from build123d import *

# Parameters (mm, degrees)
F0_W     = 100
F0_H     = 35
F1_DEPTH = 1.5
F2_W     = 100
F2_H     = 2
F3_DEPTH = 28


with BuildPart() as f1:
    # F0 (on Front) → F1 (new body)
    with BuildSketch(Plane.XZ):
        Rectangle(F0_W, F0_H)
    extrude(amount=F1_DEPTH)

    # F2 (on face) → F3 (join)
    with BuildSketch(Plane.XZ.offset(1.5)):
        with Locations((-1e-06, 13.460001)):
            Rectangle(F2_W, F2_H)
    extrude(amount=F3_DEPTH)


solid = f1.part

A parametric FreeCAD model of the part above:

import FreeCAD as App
import Part
import Sketcher
from FreeCAD import Vector

doc = App.newDocument("Part")
body = doc.addObject("PartDesign::Body", "Body")

# Sketch on XZ plane
sketch1 = body.newObject("Sketcher::SketchObject", "Sketch")
sketch1.AttachmentSupport = (doc.getObject("XZ_Plane"), [""])
sketch1.MapMode = "FlatFace"
sketch1.addGeometry(Part.LineSegment(Vector(-50, 18, 0), Vector(-50, -18, 0)), False)
sketch1.addGeometry(Part.LineSegment(Vector(-50, -18, 0), Vector(50, -18, 0)), False)
sketch1.addGeometry(Part.LineSegment(Vector(50, -18, 0), Vector(50, 18, 0)), False)
sketch1.addGeometry(Part.LineSegment(Vector(50, 18, 0), Vector(-50, 18, 0)), False)
sketch1.addConstraint(Sketcher.Constraint("Coincident", 0, 2, 1, 1))
sketch1.addConstraint(Sketcher.Constraint("Coincident", 1, 2, 2, 1))
sketch1.addConstraint(Sketcher.Constraint("Coincident", 2, 2, 3, 1))
sketch1.addConstraint(Sketcher.Constraint("Coincident", 3, 2, 0, 1))
sketch1.addConstraint(Sketcher.Constraint("Vertical", 0))
sketch1.addConstraint(Sketcher.Constraint("Horizontal", 1))
sketch1.addConstraint(Sketcher.Constraint("Vertical", 2))
sketch1.addConstraint(Sketcher.Constraint("Horizontal", 3))
sketch1.addConstraint(Sketcher.Constraint("Symmetric", 0, 2, 2, 2, -1, 1))
sketch1.addConstraint(Sketcher.Constraint("DistanceX", 1, 1, 1, 2, 100.0))
sketch1.addConstraint(Sketcher.Constraint("DistanceY", 0, 2, 0, 1, 35.0))
pad1 = body.newObject("PartDesign::Pad", "Pad")
pad1.Profile = sketch1
pad1.Length = 1.5

# Sketch on XZ plane
sketch2 = body.newObject("Sketcher::SketchObject", "Sketch001")
sketch2.AttachmentSupport = (doc.getObject("XZ_Plane"), [""])
sketch2.MapMode = "FlatFace"
sketch2.AttachmentOffset = App.Placement(Vector(0, 0, 1.5), App.Rotation())
sketch2.addGeometry(Part.LineSegment(Vector(-50, 14.5, 0), Vector(-50, 12.5, 0)), False)
sketch2.addGeometry(Part.LineSegment(Vector(-50, 12.5, 0), Vector(50, 12.5, 0)), False)
sketch2.addGeometry(Part.LineSegment(Vector(50, 12.5, 0), Vector(50, 14.5, 0)), False)
sketch2.addGeometry(Part.LineSegment(Vector(50, 14.5, 0), Vector(-50, 14.5, 0)), False)
sketch2.addConstraint(Sketcher.Constraint("Coincident", 0, 2, 1, 1))
sketch2.addConstraint(Sketcher.Constraint("Coincident", 1, 2, 2, 1))
sketch2.addConstraint(Sketcher.Constraint("Coincident", 2, 2, 3, 1))
sketch2.addConstraint(Sketcher.Constraint("Coincident", 3, 2, 0, 1))
sketch2.addConstraint(Sketcher.Constraint("Vertical", 0))
sketch2.addConstraint(Sketcher.Constraint("Horizontal", 1))
sketch2.addConstraint(Sketcher.Constraint("Vertical", 2))
sketch2.addConstraint(Sketcher.Constraint("Horizontal", 3))
sketch2.addConstraint(Sketcher.Constraint("DistanceX", 1, 1, 1, 2, 100.0))
sketch2.addConstraint(Sketcher.Constraint("DistanceY", 0, 2, 0, 1, 2.0))
sketch2.addConstraint(Sketcher.Constraint("DistanceX", 0, 2, -1, 1, 50.000001))
sketch2.addConstraint(Sketcher.Constraint("DistanceY", -1, 1, 0, 2, 12.460001))
pad2 = body.newObject("PartDesign::Pad", "Pad001")
pad2.Profile = sketch2
pad2.Length = 28

doc.recompute()
